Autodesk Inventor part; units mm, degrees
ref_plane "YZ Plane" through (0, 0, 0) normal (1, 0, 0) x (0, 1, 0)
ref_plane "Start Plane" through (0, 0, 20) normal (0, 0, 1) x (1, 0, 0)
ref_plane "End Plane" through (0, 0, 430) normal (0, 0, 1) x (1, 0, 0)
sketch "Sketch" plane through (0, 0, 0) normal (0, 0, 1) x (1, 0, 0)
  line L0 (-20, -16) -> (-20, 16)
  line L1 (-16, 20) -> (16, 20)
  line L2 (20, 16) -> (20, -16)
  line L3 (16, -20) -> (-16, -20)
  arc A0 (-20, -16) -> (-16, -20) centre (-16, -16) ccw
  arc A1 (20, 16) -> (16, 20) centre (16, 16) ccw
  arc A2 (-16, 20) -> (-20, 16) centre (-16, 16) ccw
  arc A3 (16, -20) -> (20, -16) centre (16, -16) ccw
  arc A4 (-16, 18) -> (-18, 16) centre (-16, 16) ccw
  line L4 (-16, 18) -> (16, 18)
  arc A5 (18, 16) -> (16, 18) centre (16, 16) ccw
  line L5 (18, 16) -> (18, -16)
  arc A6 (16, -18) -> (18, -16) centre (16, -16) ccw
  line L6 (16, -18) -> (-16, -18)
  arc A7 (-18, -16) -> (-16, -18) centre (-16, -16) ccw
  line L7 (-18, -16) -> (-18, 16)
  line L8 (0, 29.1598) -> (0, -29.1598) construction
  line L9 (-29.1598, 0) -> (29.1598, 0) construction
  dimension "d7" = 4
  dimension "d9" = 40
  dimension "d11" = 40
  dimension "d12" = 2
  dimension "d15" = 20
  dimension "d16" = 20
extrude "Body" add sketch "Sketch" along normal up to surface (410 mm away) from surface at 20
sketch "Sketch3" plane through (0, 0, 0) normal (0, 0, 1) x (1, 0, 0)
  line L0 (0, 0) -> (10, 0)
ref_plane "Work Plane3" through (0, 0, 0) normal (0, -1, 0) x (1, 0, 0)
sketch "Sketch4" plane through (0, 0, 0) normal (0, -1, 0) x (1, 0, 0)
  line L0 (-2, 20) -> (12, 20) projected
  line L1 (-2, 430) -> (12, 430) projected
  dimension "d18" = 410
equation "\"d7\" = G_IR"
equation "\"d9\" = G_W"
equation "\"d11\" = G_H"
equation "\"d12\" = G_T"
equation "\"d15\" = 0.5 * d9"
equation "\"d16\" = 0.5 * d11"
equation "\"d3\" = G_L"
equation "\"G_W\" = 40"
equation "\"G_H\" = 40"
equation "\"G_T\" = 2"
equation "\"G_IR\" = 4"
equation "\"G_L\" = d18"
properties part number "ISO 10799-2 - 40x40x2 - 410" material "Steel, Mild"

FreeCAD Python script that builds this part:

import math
import FreeCAD as App
import Part
import Sketcher
from FreeCAD import Vector

doc = App.newDocument("Part")
params = doc.addObject("Spreadsheet::Sheet", "Params")
for row, (alias, value) in enumerate([
    ("sketch1_radius", "4 mm"),
    ("sketch1_radius2", "2 mm"),
    ("pad1_length", "410 mm"),
], start=1):
    params.set(f"A{row}", alias)
    params.set(f"B{row}", "=" + value)
    params.setAlias(f"B{row}", alias)

body = doc.addObject("PartDesign::Body", "Body")

# Sketch on XY plane
sketch1 = body.newObject("Sketcher::SketchObject", "Sketch")
sketch1.AttachmentSupport = (doc.getObject("XY_Plane"), [""])
sketch1.MapMode = "FlatFace"
sketch1.AttachmentOffset = App.Placement(Vector(0, 0, 20), App.Rotation())
sketch1.addGeometry(Part.LineSegment(Vector(-20, 16, 0), Vector(-20, -16, 0)), False)
sketch1.addGeometry(Part.ArcOfCircle(Part.Circle(Vector(-16, -16, 0), Vector(0, 0, 1), 4), math.radians(180), math.radians(270)), False)
sketch1.addGeometry(Part.LineSegment(Vector(-16, -20, 0), Vector(16, -20, 0)), False)
sketch1.addGeometry(Part.ArcOfCircle(Part.Circle(Vector(16, -16, 0), Vector(0, 0, 1), 4), math.radians(-90), math.radians(0)), False)
sketch1.addGeometry(Part.LineSegment(Vector(20, -16, 0), Vector(20, 16, 0)), False)
sketch1.addGeometry(Part.ArcOfCircle(Part.Circle(Vector(16, 16, 0), Vector(0, 0, 1), 4), math.radians(0), math.radians(90)), False)
sketch1.addGeometry(Part.LineSegment(Vector(16, 20, 0), Vector(-16, 20, 0)), False)
sketch1.addGeometry(Part.ArcOfCircle(Part.Circle(Vector(-16, 16, 0), Vector(0, 0, 1), 4), math.radians(90), math.radians(180)), False)
sketch1.addGeometry(Part.ArcOfCircle(Part.Circle(Vector(-16, 16, 0), Vector(0, 0, 1), 2), math.radians(90), math.radians(180)), False)
sketch1.addGeometry(Part.LineSegment(Vector(-16, 18, 0), Vector(16, 18, 0)), False)
sketch1.addGeometry(Part.ArcOfCircle(Part.Circle(Vector(16, 16, 0), Vector(0, 0, 1), 2), math.radians(0), math.radians(90)), False)
sketch1.addGeometry(Part.LineSegment(Vector(18, 16, 0), Vector(18, -16, 0)), False)
sketch1.addGeometry(Part.ArcOfCircle(Part.Circle(Vector(16, -16, 0), Vector(0, 0, 1), 2), math.radians(-90), math.radians(0)), False)
sketch1.addGeometry(Part.LineSegment(Vector(16, -18, 0), Vector(-16, -18, 0)), False)
sketch1.addGeometry(Part.ArcOfCircle(Part.Circle(Vector(-16, -16, 0), Vector(0, 0, 1), 2), math.radians(180), math.radians(270)), False)
sketch1.addGeometry(Part.LineSegment(Vector(-18, -16, 0), Vector(-18, 16, 0)), False)
sketch1.addConstraint(Sketcher.Constraint("Tangent", 0, 2, 1, 1))
sketch1.addConstraint(Sketcher.Constraint("Tangent", 1, 2, 2, 1))
sketch1.addConstraint(Sketcher.Constraint("Tangent", 2, 2, 3, 1))
sketch1.addConstraint(Sketcher.Constraint("Tangent", 3, 2, 4, 1))
sketch1.addConstraint(Sketcher.Constraint("Tangent", 4, 2, 5, 1))
sketch1.addConstraint(Sketcher.Constraint("Tangent", 5, 2, 6, 1))
sketch1.addConstraint(Sketcher.Constraint("Tangent", 6, 2, 7, 1))
sketch1.addConstraint(Sketcher.Constraint("Tangent", 7, 2, 0, 1))
sketch1.addConstraint(Sketcher.Constraint("Tangent", 8, 1, 9, 1))
sketch1.addConstraint(Sketcher.Constraint("Tangent", 9, 2, 10, 2))
sketch1.addConstraint(Sketcher.Constraint("Tangent", 10, 1, 11, 1))
sketch1.addConstraint(Sketcher.Constraint("Tangent", 11, 2, 12, 2))
sketch1.addConstraint(Sketcher.Constraint("Tangent", 12, 1, 13, 1))
sketch1.addConstraint(Sketcher.Constraint("Tangent", 13, 2, 14, 2))
sketch1.addConstraint(Sketcher.Constraint("Tangent", 14, 1, 15, 1))
sketch1.addConstraint(Sketcher.Constraint("Tangent", 15, 2, 8, 2))
sketch1.addConstraint(Sketcher.Constraint("Vertical", 0))
sketch1.addConstraint(Sketcher.Constraint("Horizontal", 2))
sketch1.addConstraint(Sketcher.Constraint("Vertical", 4))
sketch1.addConstraint(Sketcher.Constraint("Horizontal", 6))
sketch1.addConstraint(Sketcher.Constraint("Horizontal", 9))
sketch1.addConstraint(Sketcher.Constraint("Vertical", 11))
sketch1.addConstraint(Sketcher.Constraint("Horizontal", 13))
sketch1.addConstraint(Sketcher.Constraint("Vertical", 15))
sketch1.addConstraint(Sketcher.Constraint("Coincident", 8, 3, 7, 3))
sketch1.addConstraint(Sketcher.Constraint("Coincident", 10, 3, 5, 3))
sketch1.addConstraint(Sketcher.Constraint("Coincident", 12, 3, 3, 3))
sketch1.addConstraint(Sketcher.Constraint("Equal", 1, 3))
sketch1.addConstraint(Sketcher.Constraint("Equal", 3, 5))
sketch1.addConstraint(Sketcher.Constraint("Equal", 5, 7))
sketch1.addConstraint(Sketcher.Constraint("Equal", 12, 14))
sketch1.addConstraint(Sketcher.Constraint("Symmetric", 1, 3, 5, 3, -1, 1))
sketch1.addConstraint(Sketcher.Constraint("Equal", 13, 0))
sketch1.addConstraint(Sketcher.Constraint("Radius", 1, 4.0))
sketch1.addConstraint(Sketcher.Constraint("Radius", 8, 2.0))
sketch1.addConstraint(Sketcher.Constraint("DistanceX", 0, 2, -1, 1, 20.0))
sketch1.setExpression("Constraints[33]", "Params.sketch1_radius")
sketch1.setExpression("Constraints[34]", "Params.sketch1_radius2")
pad1 = body.newObject("PartDesign::Pad", "Pad")
pad1.Profile = sketch1
pad1.setExpression("Length", "Params.pad1_length")

doc.recompute()
